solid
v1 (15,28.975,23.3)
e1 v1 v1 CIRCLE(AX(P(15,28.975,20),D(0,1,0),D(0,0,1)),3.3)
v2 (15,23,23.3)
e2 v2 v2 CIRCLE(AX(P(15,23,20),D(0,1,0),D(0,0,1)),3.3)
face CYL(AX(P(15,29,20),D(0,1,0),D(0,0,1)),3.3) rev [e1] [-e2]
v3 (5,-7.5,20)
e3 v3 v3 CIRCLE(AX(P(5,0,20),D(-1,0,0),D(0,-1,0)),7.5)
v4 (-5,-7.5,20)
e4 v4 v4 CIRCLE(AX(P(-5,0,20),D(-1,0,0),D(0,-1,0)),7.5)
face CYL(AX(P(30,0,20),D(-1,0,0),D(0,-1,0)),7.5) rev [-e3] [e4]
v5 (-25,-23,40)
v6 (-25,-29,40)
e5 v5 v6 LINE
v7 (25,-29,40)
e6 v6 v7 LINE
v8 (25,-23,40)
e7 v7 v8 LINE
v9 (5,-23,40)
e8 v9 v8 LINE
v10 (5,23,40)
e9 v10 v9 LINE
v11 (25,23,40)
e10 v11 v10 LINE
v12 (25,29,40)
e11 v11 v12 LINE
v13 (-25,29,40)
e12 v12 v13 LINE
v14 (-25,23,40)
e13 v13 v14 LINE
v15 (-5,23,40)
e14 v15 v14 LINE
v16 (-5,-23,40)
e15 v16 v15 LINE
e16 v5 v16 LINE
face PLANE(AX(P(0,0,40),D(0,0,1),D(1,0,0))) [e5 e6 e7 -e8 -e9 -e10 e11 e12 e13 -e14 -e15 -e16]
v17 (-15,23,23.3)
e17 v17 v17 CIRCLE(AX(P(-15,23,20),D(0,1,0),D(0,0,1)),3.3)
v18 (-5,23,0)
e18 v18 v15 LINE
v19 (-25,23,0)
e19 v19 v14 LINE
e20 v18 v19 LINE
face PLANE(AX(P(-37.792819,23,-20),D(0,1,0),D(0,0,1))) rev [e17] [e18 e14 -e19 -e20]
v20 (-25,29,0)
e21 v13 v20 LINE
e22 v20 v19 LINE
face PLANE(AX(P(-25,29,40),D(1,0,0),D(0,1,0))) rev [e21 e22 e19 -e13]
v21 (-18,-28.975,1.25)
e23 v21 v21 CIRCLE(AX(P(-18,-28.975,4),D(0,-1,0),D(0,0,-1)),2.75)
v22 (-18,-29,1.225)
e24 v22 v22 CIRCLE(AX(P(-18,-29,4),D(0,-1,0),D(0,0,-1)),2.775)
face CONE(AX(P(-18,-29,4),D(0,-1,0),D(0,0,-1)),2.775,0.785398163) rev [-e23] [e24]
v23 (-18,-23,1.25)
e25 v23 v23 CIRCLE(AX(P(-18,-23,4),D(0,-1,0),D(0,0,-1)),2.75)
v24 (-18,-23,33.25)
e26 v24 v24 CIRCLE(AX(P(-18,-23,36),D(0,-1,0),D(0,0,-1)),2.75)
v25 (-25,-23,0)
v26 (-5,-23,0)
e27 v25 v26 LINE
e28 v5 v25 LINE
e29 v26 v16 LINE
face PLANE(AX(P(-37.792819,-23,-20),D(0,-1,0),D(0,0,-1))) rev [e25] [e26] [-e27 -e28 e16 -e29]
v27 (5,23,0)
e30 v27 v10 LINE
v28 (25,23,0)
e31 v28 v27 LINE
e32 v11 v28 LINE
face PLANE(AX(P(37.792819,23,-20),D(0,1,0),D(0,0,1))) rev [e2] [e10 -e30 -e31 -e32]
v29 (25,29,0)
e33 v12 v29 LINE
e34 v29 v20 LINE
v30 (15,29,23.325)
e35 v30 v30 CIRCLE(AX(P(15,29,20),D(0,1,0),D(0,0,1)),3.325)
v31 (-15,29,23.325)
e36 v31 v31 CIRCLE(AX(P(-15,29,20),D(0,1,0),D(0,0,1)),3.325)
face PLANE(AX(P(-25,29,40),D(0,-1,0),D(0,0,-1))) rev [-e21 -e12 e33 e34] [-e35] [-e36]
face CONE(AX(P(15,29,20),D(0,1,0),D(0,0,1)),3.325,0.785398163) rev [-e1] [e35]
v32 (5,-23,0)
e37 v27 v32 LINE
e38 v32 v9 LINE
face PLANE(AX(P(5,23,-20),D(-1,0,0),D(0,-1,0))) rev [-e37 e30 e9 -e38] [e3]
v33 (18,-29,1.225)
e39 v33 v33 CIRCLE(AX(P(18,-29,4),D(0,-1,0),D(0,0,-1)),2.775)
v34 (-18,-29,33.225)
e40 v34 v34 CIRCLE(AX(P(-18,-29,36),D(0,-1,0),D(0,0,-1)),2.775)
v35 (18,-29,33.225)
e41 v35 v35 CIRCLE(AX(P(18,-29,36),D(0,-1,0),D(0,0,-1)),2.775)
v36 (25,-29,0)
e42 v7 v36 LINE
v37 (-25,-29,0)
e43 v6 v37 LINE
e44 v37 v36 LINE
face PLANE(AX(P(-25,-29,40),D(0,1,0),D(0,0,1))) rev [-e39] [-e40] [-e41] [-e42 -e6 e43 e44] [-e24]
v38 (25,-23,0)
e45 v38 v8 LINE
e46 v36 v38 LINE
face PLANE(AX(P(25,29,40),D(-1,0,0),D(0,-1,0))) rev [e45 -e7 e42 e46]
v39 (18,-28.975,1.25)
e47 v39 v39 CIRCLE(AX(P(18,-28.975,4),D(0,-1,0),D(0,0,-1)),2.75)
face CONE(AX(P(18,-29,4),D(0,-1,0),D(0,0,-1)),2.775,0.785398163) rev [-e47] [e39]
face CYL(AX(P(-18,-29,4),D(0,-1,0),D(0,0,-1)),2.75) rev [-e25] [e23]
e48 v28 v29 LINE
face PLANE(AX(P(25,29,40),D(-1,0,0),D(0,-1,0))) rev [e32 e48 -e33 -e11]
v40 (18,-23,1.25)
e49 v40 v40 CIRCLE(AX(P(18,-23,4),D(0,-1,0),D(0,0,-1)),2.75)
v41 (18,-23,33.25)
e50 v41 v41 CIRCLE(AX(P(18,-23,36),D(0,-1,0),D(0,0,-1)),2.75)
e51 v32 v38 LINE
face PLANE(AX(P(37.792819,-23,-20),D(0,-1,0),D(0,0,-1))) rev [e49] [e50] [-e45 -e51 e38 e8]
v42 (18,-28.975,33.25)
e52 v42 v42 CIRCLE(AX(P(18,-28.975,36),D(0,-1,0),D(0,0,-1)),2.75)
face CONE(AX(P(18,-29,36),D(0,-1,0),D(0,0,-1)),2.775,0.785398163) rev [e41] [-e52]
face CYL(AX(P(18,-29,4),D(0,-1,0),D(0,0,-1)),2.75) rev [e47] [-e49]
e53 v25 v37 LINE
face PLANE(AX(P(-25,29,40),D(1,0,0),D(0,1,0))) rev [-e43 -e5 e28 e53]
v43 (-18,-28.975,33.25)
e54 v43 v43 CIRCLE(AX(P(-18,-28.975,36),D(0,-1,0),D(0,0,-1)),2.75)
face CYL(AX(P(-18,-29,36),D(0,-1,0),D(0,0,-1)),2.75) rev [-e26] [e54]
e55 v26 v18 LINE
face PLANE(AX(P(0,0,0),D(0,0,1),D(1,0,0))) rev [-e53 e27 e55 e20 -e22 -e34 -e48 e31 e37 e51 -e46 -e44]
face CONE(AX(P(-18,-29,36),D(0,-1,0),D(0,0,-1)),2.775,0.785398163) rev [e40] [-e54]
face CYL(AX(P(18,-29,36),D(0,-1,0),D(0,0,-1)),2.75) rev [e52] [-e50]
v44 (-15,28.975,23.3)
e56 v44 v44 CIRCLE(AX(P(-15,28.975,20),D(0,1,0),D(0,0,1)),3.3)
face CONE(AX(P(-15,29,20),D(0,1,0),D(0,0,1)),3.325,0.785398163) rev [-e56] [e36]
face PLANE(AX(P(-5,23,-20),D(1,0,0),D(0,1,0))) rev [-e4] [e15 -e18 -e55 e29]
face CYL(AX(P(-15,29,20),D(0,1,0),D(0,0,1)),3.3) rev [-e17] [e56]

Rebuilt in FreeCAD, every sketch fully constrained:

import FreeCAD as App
import Part
import Sketcher
Q = App.Units.Quantity

doc = App.newDocument("Part")
params = doc.addObject("Spreadsheet::Sheet", "Params")
for row, (alias, value) in enumerate([
    ("sketch1_width", "50 mm"),
    ("sketch1_height", "58 mm"),
    ("pad1_length", "40 mm"),
    ("sketch2_height", "46 mm"),
    ("pocket1_length", "60 mm"),
    ("sketch3_diameter", "15 mm"),
    ("pocket2_length", "35 mm"),
    ("sketch4_diameter", "5.5 mm"),
    ("hole_diameter", "5.5 mm"),
    ("hole_depth", "17 mm"),
    ("hole_csink_diameter", "5.55 mm"),
    ("sketch5_diameter", "6.6 mm"),
    ("hole2_diameter", "6.6 mm"),
    ("hole2_depth", "17 mm"),
    ("hole2_csink_diameter", "6.65 mm"),
], start=1):
    params.set(f"A{row}", alias)
    params.set(f"B{row}", "=" + value)
    params.setAlias(f"B{row}", alias)

body = doc.addObject("PartDesign::Body", "Body")

# Sketch on XY plane
sketch1 = doc.addObject("Sketcher::SketchObject", "Sketch")
body.addObject(sketch1)
sketch1.AttachmentSupport = (doc.XY_Plane, [""])
sketch1.MapMode = "FlatFace"
sketch1.addGeometry(Part.LineSegment(App.Vector(-25, 29, 0), App.Vector(-25, -29, 0)), False)
sketch1.addGeometry(Part.LineSegment(App.Vector(-25, -29, 0), App.Vector(25, -29, 0)), False)
sketch1.addGeometry(Part.LineSegment(App.Vector(25, -29, 0), App.Vector(25, 29, 0)), False)
sketch1.addGeometry(Part.LineSegment(App.Vector(25, 29, 0), App.Vector(-25, 29, 0)), False)
sketch1.addConstraint(Sketcher.Constraint("Coincident", 0, 2, 1, 1))
sketch1.addConstraint(Sketcher.Constraint("Coincident", 1, 2, 2, 1))
sketch1.addConstraint(Sketcher.Constraint("Coincident", 2, 2, 3, 1))
sketch1.addConstraint(Sketcher.Constraint("Coincident", 3, 2, 0, 1))
sketch1.addConstraint(Sketcher.Constraint("Vertical", 0))
sketch1.addConstraint(Sketcher.Constraint("Horizontal", 1))
sketch1.addConstraint(Sketcher.Constraint("Vertical", 2))
sketch1.addConstraint(Sketcher.Constraint("Horizontal", 3))
sketch1.addConstraint(Sketcher.Constraint("Symmetric", 0, 2, 2, 2, -1, 1))
sketch1.addConstraint(Sketcher.Constraint("DistanceX", 1, 1, 1, 2, Q("50 mm")))
sketch1.addConstraint(Sketcher.Constraint("DistanceY", 0, 2, 0, 1, Q("58 mm")))
sketch1.setExpression("Constraints[9]", "Params.sketch1_width")
sketch1.setExpression("Constraints[10]", "Params.sketch1_height")
pad1 = doc.addObject("PartDesign::Pad", "Pad")
body.addObject(pad1)
pad1.Profile = sketch1
pad1.setExpression("Length", "Params.pad1_length")

# Sketch on XY plane
sketch2 = doc.addObject("Sketcher::SketchObject", "Sketch001")
body.addObject(sketch2)
sketch2.AttachmentSupport = (doc.XY_Plane, [""])
sketch2.MapMode = "FlatFace"
sketch2.AttachmentOffset = App.Placement(App.Vector(0, 0, 40), App.Rotation())
sketch2.addGeometry(Part.LineSegment(App.Vector(-37.792819, 23, 0), App.Vector(-37.792819, -23, 0)), False)
sketch2.addGeometry(Part.LineSegment(App.Vector(-37.792819, -23, 0), App.Vector(-5, -23, 0)), False)
sketch2.addGeometry(Part.LineSegment(App.Vector(-5, -23, 0), App.Vector(-5, 23, 0)), False)
sketch2.addGeometry(Part.LineSegment(App.Vector(-5, 23, 0), App.Vector(-37.792819, 23, 0)), False)
sketch2.addGeometry(Part.LineSegment(App.Vector(5, 23, 0), App.Vector(5, -23, 0)), False)
sketch2.addGeometry(Part.LineSegment(App.Vector(5, -23, 0), App.Vector(37.792819, -23, 0)), False)
sketch2.addGeometry(Part.LineSegment(App.Vector(37.792819, -23, 0), App.Vector(37.792819, 23, 0)), False)
sketch2.addGeometry(Part.LineSegment(App.Vector(37.792819, 23, 0), App.Vector(5, 23, 0)), False)
sketch2.addConstraint(Sketcher.Constraint("Coincident", 0, 2, 1, 1))
sketch2.addConstraint(Sketcher.Constraint("Coincident", 1, 2, 2, 1))
sketch2.addConstraint(Sketcher.Constraint("Coincident", 2, 2, 3, 1))
sketch2.addConstraint(Sketcher.Constraint("Coincident", 3, 2, 0, 1))
sketch2.addConstraint(Sketcher.Constraint("Coincident", 4, 2, 5, 1))
sketch2.addConstraint(Sketcher.Constraint("Coincident", 5, 2, 6, 1))
sketch2.addConstraint(Sketcher.Constraint("Coincident", 6, 2, 7, 1))
sketch2.addConstraint(Sketcher.Constraint("Coincident", 7, 2, 4, 1))
sketch2.addConstraint(Sketcher.Constraint("Vertical", 0))
sketch2.addConstraint(Sketcher.Constraint("Horizontal", 1))
sketch2.addConstraint(Sketcher.Constraint("Vertical", 2))
sketch2.addConstraint(Sketcher.Constraint("Horizontal", 3))
sketch2.addConstraint(Sketcher.Constraint("Vertical", 4))
sketch2.addConstraint(Sketcher.Constraint("Horizontal", 5))
sketch2.addConstraint(Sketcher.Constraint("Vertical", 6))
sketch2.addConstraint(Sketcher.Constraint("Horizontal", 7))
sketch2.addConstraint(Sketcher.Constraint("Symmetric", 2, 2, 4, 2, -1, 1))
sketch2.addConstraint(Sketcher.Constraint("Symmetric", 0, 2, 6, 2, -1, 1))
sketch2.addConstraint(Sketcher.Constraint("Horizontal", 1, 2, 4, 2))
sketch2.addConstraint(Sketcher.Constraint("DistanceY", 0, 2, 0, 1, Q("46 mm")))
sketch2.addConstraint(Sketcher.Constraint("DistanceX", 1, 2, -1, 1, Q("5 mm")))
sketch2.addConstraint(Sketcher.Constraint("DistanceX", 1, 1, 1, 2, Q("32.792819 mm")))
sketch2.setExpression("Constraints[19]", "Params.sketch2_height")
pocket1 = doc.addObject("PartDesign::Pocket", "Pocket")
body.addObject(pocket1)
pocket1.Profile = sketch2
pocket1.setExpression("Length", "Params.pocket1_length")

# Sketch on YZ plane
sketch3 = doc.addObject("Sketcher::SketchObject", "Sketch002")
body.addObject(sketch3)
sketch3.AttachmentSupport = (doc.YZ_Plane, [""])
sketch3.MapMode = "FlatFace"
sketch3.AttachmentOffset = App.Placement(App.Vector(0, 0, -5), App.Rotation())
sketch3.addGeometry(Part.Circle(App.Vector(0, 20, 0), App.Vector(0, 0, 1), 7.5), False)
sketch3.addConstraint(Sketcher.Constraint("PointOnObject", 0, 3, -2))
sketch3.addConstraint(Sketcher.Constraint("Diameter", 0, Q("15 mm")))
sketch3.addConstraint(Sketcher.Constraint("DistanceY", -1, 1, 0, 3, Q("20 mm")))
sketch3.setExpression("Constraints[1]", "Params.sketch3_diameter")
pocket2 = doc.addObject("PartDesign::Pocket", "Pocket001")
body.addObject(pocket2)
pocket2.Profile = sketch3
pocket2.setExpression("Length", "Params.pocket2_length")
pocket2.Reversed = True

# Sketch on XZ plane
sketch4 = doc.addObject("Sketcher::SketchObject", "Sketch003")
body.addObject(sketch4)
sketch4.AttachmentSupport = (doc.XZ_Plane, [""])
sketch4.MapMode = "FlatFace"
sketch4.AttachmentOffset = App.Placement(App.Vector(0, 0, 29), App.Rotation())
sketch4.addGeometry(Part.Circle(App.Vector(18, 4, 0), App.Vector(0, 0, 1), 2.75), False)
sketch4.addGeometry(Part.Circle(App.Vector(-18, 4, 0), App.Vector(0, 0, 1), 2.75), False)
sketch4.addGeometry(Part.Circle(App.Vector(-18, 36, 0), App.Vector(0, 0, 1), 2.75), False)
sketch4.addGeometry(Part.Circle(App.Vector(18, 36, 0), App.Vector(0, 0, 1), 2.75), False)
sketch4.addConstraint(Sketcher.Constraint("Equal", 0, 1))
sketch4.addConstraint(Sketcher.Constraint("Equal", 1, 2))
sketch4.addConstraint(Sketcher.Constraint("Equal", 2, 3))
sketch4.addConstraint(Sketcher.Constraint("Symmetric", 0, 3, 1, 3, -2))
sketch4.addConstraint(Sketcher.Constraint("Symmetric", 2, 3, 3, 3, -2))
sketch4.addConstraint(Sketcher.Constraint("Vertical", 1, 3, 2, 3))
sketch4.addConstraint(Sketcher.Constraint("Diameter", 0, Q("5.5 mm")))
sketch4.addConstraint(Sketcher.Constraint("DistanceX", -1, 1, 0, 3, Q("18 mm")))
sketch4.addConstraint(Sketcher.Constraint("DistanceY", -1, 1, 0, 3, Q("4 mm")))
sketch4.addConstraint(Sketcher.Constraint("DistanceY", -1, 1, 2, 3, Q("36 mm")))
sketch4.setExpression("Constraints[6]", "Params.sketch4_diameter")
doc.recompute()
hole = doc.addObject("PartDesign::Hole", "Hole")
body.addObject(hole)
hole.Profile = sketch4
hole.ThreadType = "None"
hole.setExpression("Diameter", "Params.hole_diameter")
hole.DepthType = "Dimension"
hole.setExpression("Depth", "Params.hole_depth")
hole.DrillPoint = "Angled"
hole.DrillPointAngle = 118
hole.HoleCutType = "Countersink"
hole.setExpression("HoleCutDiameter", "Params.hole_csink_diameter")
hole.HoleCutCountersinkAngle = 90

# Sketch on XZ plane
sketch5 = doc.addObject("Sketcher::SketchObject", "Sketch004")
body.addObject(sketch5)
sketch5.AttachmentSupport = (doc.XZ_Plane, [""])
sketch5.MapMode = "FlatFace"
sketch5.AttachmentOffset = App.Placement(App.Vector(0, 0, -29), App.Rotation())
sketch5.addGeometry(Part.Circle(App.Vector(-15, 20, 0), App.Vector(0, 0, 1), 3.3), False)
sketch5.addGeometry(Part.Circle(App.Vector(15, 20, 0), App.Vector(0, 0, 1), 3.3), False)
sketch5.addConstraint(Sketcher.Constraint("Equal", 0, 1))
sketch5.addConstraint(Sketcher.Constraint("Symmetric", 0, 3, 1, 3, -2))
sketch5.addConstraint(Sketcher.Constraint("Diameter", 0, Q("6.6 mm")))
sketch5.addConstraint(Sketcher.Constraint("DistanceX", 0, 3, -1, 1, Q("15 mm")))
sketch5.addConstraint(Sketcher.Constraint("DistanceY", -1, 1, 0, 3, Q("20 mm")))
sketch5.setExpression("Constraints[2]", "Params.sketch5_diameter")
doc.recompute()
hole2 = doc.addObject("PartDesign::Hole", "Hole001")
body.addObject(hole2)
hole2.Profile = sketch5
hole2.ThreadType = "None"
hole2.setExpression("Diameter", "Params.hole2_diameter")
hole2.DepthType = "Dimension"
hole2.setExpression("Depth", "Params.hole2_depth")
hole2.DrillPoint = "Angled"
hole2.DrillPointAngle = 118
hole2.HoleCutType = "Countersink"
hole2.setExpression("HoleCutDiameter", "Params.hole2_csink_diameter")
hole2.HoleCutCountersinkAngle = 90
hole2.Reversed = True

doc.recompute()
